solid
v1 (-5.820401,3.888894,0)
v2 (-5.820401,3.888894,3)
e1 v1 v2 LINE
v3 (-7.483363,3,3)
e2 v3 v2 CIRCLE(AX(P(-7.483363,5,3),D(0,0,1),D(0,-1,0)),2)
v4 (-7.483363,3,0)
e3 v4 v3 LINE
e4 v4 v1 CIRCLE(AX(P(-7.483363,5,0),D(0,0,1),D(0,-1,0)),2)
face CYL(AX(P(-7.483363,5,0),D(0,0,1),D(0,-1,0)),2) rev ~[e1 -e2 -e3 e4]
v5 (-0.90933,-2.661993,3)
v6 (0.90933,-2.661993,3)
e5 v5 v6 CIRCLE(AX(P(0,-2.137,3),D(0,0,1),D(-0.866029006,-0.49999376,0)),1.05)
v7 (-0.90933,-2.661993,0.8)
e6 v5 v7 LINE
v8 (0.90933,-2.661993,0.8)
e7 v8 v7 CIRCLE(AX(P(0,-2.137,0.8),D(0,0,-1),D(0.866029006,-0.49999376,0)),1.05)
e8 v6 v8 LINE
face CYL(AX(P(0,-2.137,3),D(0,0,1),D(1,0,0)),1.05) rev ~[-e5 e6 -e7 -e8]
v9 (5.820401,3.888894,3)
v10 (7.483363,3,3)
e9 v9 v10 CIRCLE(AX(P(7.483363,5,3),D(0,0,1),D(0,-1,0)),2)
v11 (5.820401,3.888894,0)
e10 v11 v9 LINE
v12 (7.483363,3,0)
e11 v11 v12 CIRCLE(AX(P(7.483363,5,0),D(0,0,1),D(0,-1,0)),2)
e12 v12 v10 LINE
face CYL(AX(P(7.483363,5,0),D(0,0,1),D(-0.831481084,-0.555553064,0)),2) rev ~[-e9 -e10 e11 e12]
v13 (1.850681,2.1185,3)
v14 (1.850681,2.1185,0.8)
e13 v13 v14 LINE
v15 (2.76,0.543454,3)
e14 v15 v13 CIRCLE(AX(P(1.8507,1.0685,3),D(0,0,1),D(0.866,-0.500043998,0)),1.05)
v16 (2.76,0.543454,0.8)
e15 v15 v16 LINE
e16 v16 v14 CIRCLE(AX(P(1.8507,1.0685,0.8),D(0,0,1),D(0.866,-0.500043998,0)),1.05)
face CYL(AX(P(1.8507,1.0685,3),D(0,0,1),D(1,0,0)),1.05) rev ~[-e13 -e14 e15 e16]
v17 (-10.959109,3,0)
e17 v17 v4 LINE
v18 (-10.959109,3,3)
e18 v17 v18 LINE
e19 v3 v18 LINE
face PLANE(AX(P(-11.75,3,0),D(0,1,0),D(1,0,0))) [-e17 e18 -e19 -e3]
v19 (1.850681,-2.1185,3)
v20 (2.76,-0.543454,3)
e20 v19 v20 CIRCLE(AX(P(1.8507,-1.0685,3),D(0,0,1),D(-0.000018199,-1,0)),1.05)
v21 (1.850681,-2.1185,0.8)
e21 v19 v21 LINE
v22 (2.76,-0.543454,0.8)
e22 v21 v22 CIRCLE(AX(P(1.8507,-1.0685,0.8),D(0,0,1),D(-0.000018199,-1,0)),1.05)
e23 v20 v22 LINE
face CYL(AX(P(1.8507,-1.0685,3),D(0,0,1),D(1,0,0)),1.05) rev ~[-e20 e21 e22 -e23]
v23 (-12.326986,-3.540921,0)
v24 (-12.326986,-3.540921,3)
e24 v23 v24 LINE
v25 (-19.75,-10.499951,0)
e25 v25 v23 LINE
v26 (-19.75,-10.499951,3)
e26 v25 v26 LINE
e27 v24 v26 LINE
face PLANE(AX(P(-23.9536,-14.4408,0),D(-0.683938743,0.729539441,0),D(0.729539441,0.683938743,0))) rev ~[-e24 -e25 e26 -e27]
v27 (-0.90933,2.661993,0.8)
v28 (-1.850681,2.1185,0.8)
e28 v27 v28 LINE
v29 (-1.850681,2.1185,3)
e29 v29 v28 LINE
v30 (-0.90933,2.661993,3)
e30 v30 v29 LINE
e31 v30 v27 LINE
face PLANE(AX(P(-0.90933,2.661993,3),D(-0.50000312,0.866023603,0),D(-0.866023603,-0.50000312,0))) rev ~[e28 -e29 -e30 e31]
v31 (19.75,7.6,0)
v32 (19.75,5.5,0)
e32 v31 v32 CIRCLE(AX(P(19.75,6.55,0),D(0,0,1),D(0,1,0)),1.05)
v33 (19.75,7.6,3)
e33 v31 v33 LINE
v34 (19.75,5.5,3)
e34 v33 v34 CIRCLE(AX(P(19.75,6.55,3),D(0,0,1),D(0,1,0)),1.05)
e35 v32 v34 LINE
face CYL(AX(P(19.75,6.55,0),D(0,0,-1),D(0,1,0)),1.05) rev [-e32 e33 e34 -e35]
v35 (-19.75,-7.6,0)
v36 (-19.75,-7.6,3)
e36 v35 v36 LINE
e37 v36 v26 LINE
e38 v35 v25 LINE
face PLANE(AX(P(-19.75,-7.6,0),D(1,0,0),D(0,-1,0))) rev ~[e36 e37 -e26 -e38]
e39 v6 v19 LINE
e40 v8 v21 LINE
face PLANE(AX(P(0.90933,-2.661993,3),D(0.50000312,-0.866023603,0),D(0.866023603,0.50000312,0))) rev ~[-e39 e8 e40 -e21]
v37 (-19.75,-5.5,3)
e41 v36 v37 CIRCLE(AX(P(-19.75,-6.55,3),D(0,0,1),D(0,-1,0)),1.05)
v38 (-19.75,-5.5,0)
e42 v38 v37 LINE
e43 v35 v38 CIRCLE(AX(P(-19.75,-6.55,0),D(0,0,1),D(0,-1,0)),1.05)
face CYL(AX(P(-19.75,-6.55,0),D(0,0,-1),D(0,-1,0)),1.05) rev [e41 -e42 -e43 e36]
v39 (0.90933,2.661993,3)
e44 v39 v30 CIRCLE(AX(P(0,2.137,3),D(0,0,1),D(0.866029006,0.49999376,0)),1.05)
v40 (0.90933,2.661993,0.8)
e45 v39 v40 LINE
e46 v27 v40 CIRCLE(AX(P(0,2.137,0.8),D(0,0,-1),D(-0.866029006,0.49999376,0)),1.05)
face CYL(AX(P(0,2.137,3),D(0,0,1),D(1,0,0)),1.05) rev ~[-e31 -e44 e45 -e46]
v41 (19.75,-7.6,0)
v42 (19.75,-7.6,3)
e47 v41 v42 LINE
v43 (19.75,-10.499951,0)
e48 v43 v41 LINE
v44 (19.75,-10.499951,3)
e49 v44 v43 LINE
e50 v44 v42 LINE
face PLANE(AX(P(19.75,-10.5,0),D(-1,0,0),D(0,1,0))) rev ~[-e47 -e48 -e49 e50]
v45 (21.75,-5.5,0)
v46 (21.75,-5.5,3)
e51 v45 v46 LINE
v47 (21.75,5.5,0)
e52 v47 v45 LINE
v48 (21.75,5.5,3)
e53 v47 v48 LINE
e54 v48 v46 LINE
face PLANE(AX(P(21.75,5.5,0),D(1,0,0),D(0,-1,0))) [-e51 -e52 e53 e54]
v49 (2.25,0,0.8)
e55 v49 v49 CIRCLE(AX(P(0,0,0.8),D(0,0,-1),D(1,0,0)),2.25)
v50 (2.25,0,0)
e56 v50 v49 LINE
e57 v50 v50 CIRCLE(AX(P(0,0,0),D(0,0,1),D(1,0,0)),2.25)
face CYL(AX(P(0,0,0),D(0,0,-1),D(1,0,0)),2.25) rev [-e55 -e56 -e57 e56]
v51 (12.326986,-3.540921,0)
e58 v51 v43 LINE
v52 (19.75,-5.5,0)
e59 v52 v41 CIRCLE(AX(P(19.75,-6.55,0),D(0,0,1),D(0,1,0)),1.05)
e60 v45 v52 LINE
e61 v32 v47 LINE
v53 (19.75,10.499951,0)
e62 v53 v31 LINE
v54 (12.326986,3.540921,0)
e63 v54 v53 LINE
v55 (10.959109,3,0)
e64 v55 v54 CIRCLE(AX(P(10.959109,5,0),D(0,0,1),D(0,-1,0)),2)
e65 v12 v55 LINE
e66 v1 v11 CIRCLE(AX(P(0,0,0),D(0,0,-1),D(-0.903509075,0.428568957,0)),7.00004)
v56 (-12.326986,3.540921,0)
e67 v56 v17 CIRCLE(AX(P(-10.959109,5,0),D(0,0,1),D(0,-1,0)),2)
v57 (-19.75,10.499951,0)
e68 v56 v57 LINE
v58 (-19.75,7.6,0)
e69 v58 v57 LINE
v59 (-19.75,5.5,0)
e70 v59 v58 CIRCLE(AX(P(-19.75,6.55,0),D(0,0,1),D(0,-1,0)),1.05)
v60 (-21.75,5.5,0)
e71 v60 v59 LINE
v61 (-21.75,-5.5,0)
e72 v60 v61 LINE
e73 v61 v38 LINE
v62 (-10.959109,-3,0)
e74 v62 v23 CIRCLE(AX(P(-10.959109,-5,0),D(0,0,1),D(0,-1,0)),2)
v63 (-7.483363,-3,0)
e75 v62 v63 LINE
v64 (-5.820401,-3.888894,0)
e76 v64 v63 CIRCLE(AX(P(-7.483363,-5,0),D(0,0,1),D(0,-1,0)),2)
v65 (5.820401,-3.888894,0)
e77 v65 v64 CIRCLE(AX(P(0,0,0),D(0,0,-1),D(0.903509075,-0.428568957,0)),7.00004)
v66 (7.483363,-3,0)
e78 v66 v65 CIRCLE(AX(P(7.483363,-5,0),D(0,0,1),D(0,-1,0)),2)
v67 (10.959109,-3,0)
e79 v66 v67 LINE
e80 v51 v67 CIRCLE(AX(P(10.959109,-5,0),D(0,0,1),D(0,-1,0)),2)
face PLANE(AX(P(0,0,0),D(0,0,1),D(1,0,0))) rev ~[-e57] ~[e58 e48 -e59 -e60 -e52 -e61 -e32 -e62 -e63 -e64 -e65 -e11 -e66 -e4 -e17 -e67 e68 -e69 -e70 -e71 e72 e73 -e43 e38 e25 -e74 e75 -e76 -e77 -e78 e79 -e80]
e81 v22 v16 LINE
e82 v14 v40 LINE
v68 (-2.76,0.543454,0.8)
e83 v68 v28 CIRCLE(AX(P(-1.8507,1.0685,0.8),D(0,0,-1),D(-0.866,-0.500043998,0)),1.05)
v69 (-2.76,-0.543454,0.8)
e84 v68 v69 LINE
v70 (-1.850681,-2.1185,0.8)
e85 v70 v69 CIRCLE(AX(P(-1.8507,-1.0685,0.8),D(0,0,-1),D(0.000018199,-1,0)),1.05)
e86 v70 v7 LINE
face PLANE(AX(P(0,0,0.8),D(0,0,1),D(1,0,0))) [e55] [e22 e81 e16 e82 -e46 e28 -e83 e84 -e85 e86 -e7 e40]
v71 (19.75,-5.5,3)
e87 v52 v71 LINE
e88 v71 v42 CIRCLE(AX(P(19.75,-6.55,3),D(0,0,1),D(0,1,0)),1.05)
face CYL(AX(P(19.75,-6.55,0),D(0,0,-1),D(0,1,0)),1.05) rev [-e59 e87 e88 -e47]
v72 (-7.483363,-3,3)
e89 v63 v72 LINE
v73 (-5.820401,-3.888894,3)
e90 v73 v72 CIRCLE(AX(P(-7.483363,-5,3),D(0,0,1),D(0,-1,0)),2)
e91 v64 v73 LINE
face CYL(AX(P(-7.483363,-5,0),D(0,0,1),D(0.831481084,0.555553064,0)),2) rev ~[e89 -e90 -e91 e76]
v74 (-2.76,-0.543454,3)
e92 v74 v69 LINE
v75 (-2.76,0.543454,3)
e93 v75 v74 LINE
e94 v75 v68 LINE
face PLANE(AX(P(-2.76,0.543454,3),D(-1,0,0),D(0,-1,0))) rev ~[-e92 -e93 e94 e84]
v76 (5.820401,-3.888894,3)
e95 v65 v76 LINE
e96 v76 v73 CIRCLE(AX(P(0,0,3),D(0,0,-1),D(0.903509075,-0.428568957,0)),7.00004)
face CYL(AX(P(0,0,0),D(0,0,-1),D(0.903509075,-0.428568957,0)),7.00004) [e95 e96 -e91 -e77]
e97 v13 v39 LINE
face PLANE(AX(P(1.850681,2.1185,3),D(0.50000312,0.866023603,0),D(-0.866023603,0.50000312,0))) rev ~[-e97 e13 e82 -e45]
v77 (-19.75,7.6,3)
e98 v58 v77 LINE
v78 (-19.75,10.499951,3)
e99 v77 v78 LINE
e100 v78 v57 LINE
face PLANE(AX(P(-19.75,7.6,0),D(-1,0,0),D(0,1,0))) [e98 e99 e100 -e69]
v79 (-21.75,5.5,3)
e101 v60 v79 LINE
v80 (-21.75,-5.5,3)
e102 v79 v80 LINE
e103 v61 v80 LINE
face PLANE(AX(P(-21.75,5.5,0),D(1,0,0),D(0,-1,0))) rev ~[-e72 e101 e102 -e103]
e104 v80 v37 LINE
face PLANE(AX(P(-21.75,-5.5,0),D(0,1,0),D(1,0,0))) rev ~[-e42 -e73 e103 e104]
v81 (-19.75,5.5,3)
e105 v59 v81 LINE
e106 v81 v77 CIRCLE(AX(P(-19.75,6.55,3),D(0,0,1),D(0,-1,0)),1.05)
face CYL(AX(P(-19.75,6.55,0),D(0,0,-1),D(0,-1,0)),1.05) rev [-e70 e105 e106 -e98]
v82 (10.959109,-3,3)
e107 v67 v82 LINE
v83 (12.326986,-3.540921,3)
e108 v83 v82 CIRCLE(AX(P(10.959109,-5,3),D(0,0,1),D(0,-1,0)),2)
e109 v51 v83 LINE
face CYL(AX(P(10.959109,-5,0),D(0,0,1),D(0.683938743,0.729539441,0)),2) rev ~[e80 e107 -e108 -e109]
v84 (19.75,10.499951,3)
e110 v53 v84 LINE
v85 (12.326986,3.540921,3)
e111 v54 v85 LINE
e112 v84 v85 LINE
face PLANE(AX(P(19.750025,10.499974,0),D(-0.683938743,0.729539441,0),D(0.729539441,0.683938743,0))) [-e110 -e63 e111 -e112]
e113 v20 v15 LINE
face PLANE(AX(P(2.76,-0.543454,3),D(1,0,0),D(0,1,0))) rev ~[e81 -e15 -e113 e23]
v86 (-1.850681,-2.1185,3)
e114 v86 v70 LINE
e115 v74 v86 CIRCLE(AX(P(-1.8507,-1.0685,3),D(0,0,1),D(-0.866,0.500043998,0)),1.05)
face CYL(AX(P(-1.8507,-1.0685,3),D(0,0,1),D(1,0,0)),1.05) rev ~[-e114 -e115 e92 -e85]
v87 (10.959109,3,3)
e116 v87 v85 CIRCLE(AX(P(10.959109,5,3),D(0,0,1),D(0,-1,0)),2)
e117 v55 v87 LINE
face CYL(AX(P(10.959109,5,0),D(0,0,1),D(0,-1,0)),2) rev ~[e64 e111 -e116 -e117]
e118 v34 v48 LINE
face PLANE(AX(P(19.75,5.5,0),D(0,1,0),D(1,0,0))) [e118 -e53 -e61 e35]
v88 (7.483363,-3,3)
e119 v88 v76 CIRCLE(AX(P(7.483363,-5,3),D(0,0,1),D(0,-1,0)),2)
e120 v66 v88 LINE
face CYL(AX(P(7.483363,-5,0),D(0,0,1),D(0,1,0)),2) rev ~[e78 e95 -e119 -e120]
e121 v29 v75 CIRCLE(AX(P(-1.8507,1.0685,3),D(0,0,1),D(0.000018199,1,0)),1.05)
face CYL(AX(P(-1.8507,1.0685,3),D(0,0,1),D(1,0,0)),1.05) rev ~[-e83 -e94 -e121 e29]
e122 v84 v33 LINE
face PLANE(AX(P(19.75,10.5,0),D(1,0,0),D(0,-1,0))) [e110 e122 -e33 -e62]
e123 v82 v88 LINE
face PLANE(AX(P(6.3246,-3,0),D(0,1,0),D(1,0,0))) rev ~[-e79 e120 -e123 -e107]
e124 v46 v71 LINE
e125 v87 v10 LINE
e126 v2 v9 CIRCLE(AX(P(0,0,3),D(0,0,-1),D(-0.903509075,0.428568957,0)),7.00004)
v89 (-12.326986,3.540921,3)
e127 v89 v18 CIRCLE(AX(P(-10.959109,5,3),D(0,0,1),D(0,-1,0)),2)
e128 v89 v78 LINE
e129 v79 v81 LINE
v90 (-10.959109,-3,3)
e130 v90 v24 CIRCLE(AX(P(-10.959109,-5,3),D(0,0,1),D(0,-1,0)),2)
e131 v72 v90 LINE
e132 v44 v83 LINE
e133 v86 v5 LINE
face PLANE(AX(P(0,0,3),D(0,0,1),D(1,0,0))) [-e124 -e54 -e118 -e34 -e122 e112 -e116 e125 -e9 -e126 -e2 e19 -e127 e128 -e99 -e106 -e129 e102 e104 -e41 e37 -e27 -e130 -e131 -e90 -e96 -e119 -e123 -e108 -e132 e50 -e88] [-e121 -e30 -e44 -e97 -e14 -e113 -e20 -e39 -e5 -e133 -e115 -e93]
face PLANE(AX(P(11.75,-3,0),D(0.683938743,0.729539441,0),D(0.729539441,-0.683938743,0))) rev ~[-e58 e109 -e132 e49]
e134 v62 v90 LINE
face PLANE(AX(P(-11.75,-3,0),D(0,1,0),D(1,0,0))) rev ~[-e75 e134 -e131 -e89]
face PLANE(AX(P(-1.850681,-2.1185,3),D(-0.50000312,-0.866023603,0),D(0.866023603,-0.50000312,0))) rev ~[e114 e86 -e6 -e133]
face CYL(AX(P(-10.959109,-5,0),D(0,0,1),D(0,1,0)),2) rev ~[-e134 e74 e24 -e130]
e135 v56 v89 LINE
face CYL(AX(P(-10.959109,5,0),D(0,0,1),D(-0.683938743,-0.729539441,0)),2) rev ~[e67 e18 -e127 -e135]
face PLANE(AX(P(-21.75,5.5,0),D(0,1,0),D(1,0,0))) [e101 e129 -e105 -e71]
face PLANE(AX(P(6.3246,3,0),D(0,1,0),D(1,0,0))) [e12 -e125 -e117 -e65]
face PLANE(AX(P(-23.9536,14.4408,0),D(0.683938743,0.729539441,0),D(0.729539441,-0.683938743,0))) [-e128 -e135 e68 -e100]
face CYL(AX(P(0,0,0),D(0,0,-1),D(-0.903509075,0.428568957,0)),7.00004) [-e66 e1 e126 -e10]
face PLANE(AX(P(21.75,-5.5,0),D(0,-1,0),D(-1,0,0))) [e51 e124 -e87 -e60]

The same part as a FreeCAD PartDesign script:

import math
import FreeCAD as App
import Part
import Sketcher
from FreeCAD import Vector
Q = App.Units.Quantity


def edges_at(feature, points):
    """Names of the edges that pass closest to the given points."""
    edges = feature.Shape.Edges
    near = lambda p: min(range(len(edges)), key=lambda i: edges[i].distToShape(Part.Vertex(*p))[0])
    return sorted({f"Edge{near(p) + 1}" for p in points})

doc = App.newDocument("Part")
body = doc.addObject("PartDesign::Body", "Body")

# Sketch on XY plane
sketch1 = body.newObject("Sketcher::SketchObject", "Sketch")
sketch1.AttachmentSupport = (doc.getObject("XY_Plane"), [""])
sketch1.MapMode = "FlatFace"
sketch1.addGeometry([
    Part.LineSegment(Vector(-19.8, 5.5, 0), Vector(-21.8, 5.5, 0)),  # 0
    Part.LineSegment(Vector(-21.8, 5.5, 0), Vector(-21.8, -5.5, 0)),  # 1
    Part.LineSegment(Vector(-21.8, -5.5, 0), Vector(-19.8, -5.5, 0)),  # 2
    Part.ArcOfCircle(Part.Circle(Vector(-19.8, -6.5, 0), Vector(0, 0, 1), 1), math.radians(-90), math.radians(90)),  # 3
    Part.LineSegment(Vector(-19.8, -7.6, 0), Vector(-19.8, -10.5, 0)),  # 4
    Part.LineSegment(Vector(-19.8, -10.5, 0), Vector(19.8, -10.5, 0)),  # 5
    Part.LineSegment(Vector(19.8, -10.5, 0), Vector(19.8, -7.6, 0)),  # 6
    Part.ArcOfCircle(Part.Circle(Vector(19.8, -6.5, 0), Vector(0, 0, 1), 1), math.radians(90), math.radians(270)),  # 7
    Part.LineSegment(Vector(19.8, -5.5, 0), Vector(21.8, -5.5, 0)),  # 8
    Part.LineSegment(Vector(21.8, -5.5, 0), Vector(21.8, 5.5, 0)),  # 9
    Part.LineSegment(Vector(21.8, 5.5, 0), Vector(19.8, 5.5, 0)),  # 10
    Part.ArcOfCircle(Part.Circle(Vector(19.8, 6.5, 0), Vector(0, 0, 1), 1), math.radians(90), math.radians(270)),  # 11
    Part.LineSegment(Vector(19.8, 7.6, 0), Vector(19.8, 10.5, 0)),  # 12
    Part.LineSegment(Vector(19.8, 10.5, 0), Vector(-19.8, 10.5, 0)),  # 13
    Part.LineSegment(Vector(-19.8, 10.5, 0), Vector(-19.8, 7.6, 0)),  # 14
    Part.ArcOfCircle(Part.Circle(Vector(-19.8, 6.5, 0), Vector(0, 0, 1), 1), math.radians(-90), math.radians(90)),  # 15
    Part.Circle(Vector(0, 0, 0), Vector(0, 0, 1), 2.2),  # 16
], False)
sketch1.addConstraint([
    Sketcher.Constraint("Coincident", 0, 2, 1, 1),
    Sketcher.Constraint("Coincident", 1, 2, 2, 1),
    Sketcher.Constraint("Tangent", 2, 2, 3, 2),
    Sketcher.Constraint("Coincident", 3, 1, 4, 1),
    Sketcher.Constraint("Coincident", 4, 2, 5, 1),
    Sketcher.Constraint("Coincident", 5, 2, 6, 1),
    Sketcher.Constraint("Coincident", 6, 2, 7, 2),
    Sketcher.Constraint("Tangent", 7, 1, 8, 1),
    Sketcher.Constraint("Coincident", 8, 2, 9, 1),
    Sketcher.Constraint("Coincident", 9, 2, 10, 1),
    Sketcher.Constraint("Tangent", 10, 2, 11, 2),
    Sketcher.Constraint("Coincident", 11, 1, 12, 1),
    Sketcher.Constraint("Coincident", 12, 2, 13, 1),
    Sketcher.Constraint("Coincident", 13, 2, 14, 1),
    Sketcher.Constraint("Coincident", 14, 2, 15, 2),
    Sketcher.Constraint("Tangent", 15, 1, 0, 1),
    Sketcher.Constraint("Horizontal", 0),
    Sketcher.Constraint("Vertical", 1),
    Sketcher.Constraint("Horizontal", 2),
    Sketcher.Constraint("Vertical", 4),
    Sketcher.Constraint("Horizontal", 5),
    Sketcher.Constraint("Vertical", 6),
    Sketcher.Constraint("Horizontal", 8),
    Sketcher.Constraint("Vertical", 9),
    Sketcher.Constraint("Horizontal", 10),
    Sketcher.Constraint("Vertical", 12),
    Sketcher.Constraint("Horizontal", 13),
    Sketcher.Constraint("Vertical", 14),
    Sketcher.Constraint("Coincident", 16, 3, -1, 1),
    Sketcher.Constraint("Equal", 3, 7),
    Sketcher.Constraint("Equal", 7, 11),
    Sketcher.Constraint("Equal", 11, 15),
    Sketcher.Constraint("Symmetric", 3, 3, 11, 3, -1, 1),
    Sketcher.Constraint("Symmetric", 7, 3, 15, 3, -1, 1),
    Sketcher.Constraint("Symmetric", 4, 2, 12, 2, -1, 1),
    Sketcher.Constraint("Symmetric", 3, 3, 7, 3, -2),
    Sketcher.Constraint("Vertical", 2, 2, 3, 1),
    Sketcher.Constraint("Vertical", 11, 3, 5, 2),
    Sketcher.Constraint("Vertical", 4, 2, 13, 2),
    Sketcher.Constraint("Equal", 2, 8),
    Sketcher.Constraint("Diameter", 16, 4.5),
    Sketcher.Constraint("DistanceX", 0, 2, 0, 1, 2.0),
    Sketcher.Constraint("DistanceY", 1, 2, 1, 1, 11.0),
    Sketcher.Constraint("Radius", 3, 1.05),
    Sketcher.Constraint("DistanceX", 5, 1, 5, 2, 39.5),
    Sketcher.Constraint("DistanceY", 4, 2, 2, 2, 5.0),
])
pad1 = body.newObject("PartDesign::Pad", "Pad")
pad1.Profile = sketch1
pad1.Length = 3

# Sketch on XY plane
sketch2 = body.newObject("Sketcher::SketchObject", "Sketch001")
sketch2.AttachmentSupport = (doc.getObject("XY_Plane"), [""])
sketch2.MapMode = "FlatFace"
sketch2.addGeometry([
    Part.LineSegment(Vector(24, 14, 0), Vector(12, 3, 0)),  # 0
    Part.LineSegment(Vector(12, 3, 0), Vector(6, 3, 0)),  # 1
    Part.ArcOfCircle(Part.Circle(Vector(0, 0, 0), Vector(0, 0, 1), 7), math.radians(25), math.radians(155)),  # 2
    Part.LineSegment(Vector(-6, 3, 0), Vector(-12, 3, 0)),  # 3
    Part.LineSegment(Vector(-12, 3, 0), Vector(-24, 14, 0)),  # 4
    Part.LineSegment(Vector(-24, 14, 0), Vector(24, 14, 0)),  # 5
    Part.ArcOfCircle(Part.Circle(Vector(0, 0, 0), Vector(0, 0, 1), 7), math.radians(-155), math.radians(-25)),  # 6
    Part.LineSegment(Vector(6, -3, 0), Vector(12, -3, 0)),  # 7
    Part.LineSegment(Vector(12, -3, 0), Vector(24, -14, 0)),  # 8
    Part.LineSegment(Vector(24, -14, 0), Vector(-24, -14, 0)),  # 9
    Part.LineSegment(Vector(-24, -14, 0), Vector(-12, -3, 0)),  # 10
    Part.LineSegment(Vector(-12, -3, 0), Vector(-6, -3, 0)),  # 11
], False)
sketch2.addConstraint([
    Sketcher.Constraint("Coincident", 0, 2, 1, 1),
    Sketcher.Constraint("Coincident", 1, 2, 2, 1),
    Sketcher.Constraint("Coincident", 2, 2, 3, 1),
    Sketcher.Constraint("Coincident", 3, 2, 4, 1),
    Sketcher.Constraint("Coincident", 4, 2, 5, 1),
    Sketcher.Constraint("Coincident", 5, 2, 0, 1),
    Sketcher.Constraint("Coincident", 6, 2, 7, 1),
    Sketcher.Constraint("Coincident", 7, 2, 8, 1),
    Sketcher.Constraint("Coincident", 8, 2, 9, 1),
    Sketcher.Constraint("Coincident", 9, 2, 10, 1),
    Sketcher.Constraint("Coincident", 10, 2, 11, 1),
    Sketcher.Constraint("Coincident", 11, 2, 6, 1),
    Sketcher.Constraint("Horizontal", 1),
    Sketcher.Constraint("Horizontal", 3),
    Sketcher.Constraint("Horizontal", 5),
    Sketcher.Constraint("Horizontal", 7),
    Sketcher.Constraint("Horizontal", 9),
    Sketcher.Constraint("Horizontal", 11),
    Sketcher.Constraint("Coincident", 2, 3, -1, 1),
    Sketcher.Constraint("Coincident", 6, 3, -1, 1),
    Sketcher.Constraint("Equal", 2, 6),
    Sketcher.Constraint("Symmetric", 3, 2, 7, 2, -1, 1),
    Sketcher.Constraint("Symmetric", 4, 2, 8, 2, -1, 1),
    Sketcher.Constraint("Symmetric", 0, 2, 10, 2, -1, 1),
    Sketcher.Constraint("Symmetric", 0, 2, 3, 2, -2),
    Sketcher.Constraint("Parallel", 0, 10),
    Sketcher.Constraint("Vertical", 5, 2, 8, 2),
    Sketcher.Constraint("Radius", 2, 7.0),
    Sketcher.Constraint("DistanceY", -1, 1, 0, 2, 3.0),
    Sketcher.Constraint("DistanceX", 3, 2, 0, 2, 23.5),
    Sketcher.Constraint("DistanceX", 5, 1, 5, 2, 47.9072),
    Sketcher.Constraint("Distance", 0, 16.7278),
])
pocket1 = body.newObject("PartDesign::Pocket", "Pocket")
pocket1.Profile = sketch2
pocket1.Length = 10
pocket1.Reversed = True
doc.recompute()

fillet = body.newObject("PartDesign::Fillet", "Fillet")
fillet.Base = (pocket1, edges_at(pocket1, [
    (6.325, 3, 1.5),
    (-6.325, 3, 1.5),
    (6.325, -3, 1.5),
    (-6.325, -3, 1.5),
    (11.75, -3, 1.5),
    (11.75, 3, 1.5),
    (-11.75, 3, 1.5),
    (-11.75, -3, 1.5),
]))
fillet.Radius = 2

# Sketch on XY plane
sketch3 = body.newObject("Sketcher::SketchObject", "Sketch002")
sketch3.AttachmentSupport = (doc.getObject("XY_Plane"), [""])
sketch3.MapMode = "FlatFace"
sketch3.AttachmentOffset = App.Placement(Vector(0, 0, 3), App.Rotation())
sketch3.addGeometry([
    Part.LineSegment(Vector(2.8, -0.5, 0), Vector(2.8, 0.5, 0)),  # 0
    Part.ArcOfCircle(Part.Circle(Vector(1.9, 1.1, 0), Vector(0, 0, 1), 1.1), math.radians(-30), math.radians(90)),  # 1
    Part.LineSegment(Vector(1.9, 2.1, 0), Vector(0.9, 2.7, 0)),  # 2
    Part.ArcOfCircle(Part.Circle(Vector(0, 2.1, 0), Vector(0, 0, 1), 1.1), math.radians(30), math.radians(150)),  # 3
    Part.LineSegment(Vector(-0.9, 2.7, 0), Vector(-1.9, 2.1, 0)),  # 4
    Part.ArcOfCircle(Part.Circle(Vector(-1.9, 1.1, 0), Vector(0, 0, 1), 1.1), math.radians(90), math.radians(210)),  # 5
    Part.LineSegment(Vector(-2.8, 0.5, 0), Vector(-2.8, -0.5, 0)),  # 6
    Part.ArcOfCircle(Part.Circle(Vector(-1.9, -1.1, 0), Vector(0, 0, 1), 1.1), math.radians(150), math.radians(270)),  # 7
    Part.LineSegment(Vector(-1.9, -2.1, 0), Vector(-0.9, -2.7, 0)),  # 8
    Part.ArcOfCircle(Part.Circle(Vector(0, -2.1, 0), Vector(0, 0, 1), 1.1), math.radians(-150), math.radians(-30)),  # 9
    Part.LineSegment(Vector(0.9, -2.7, 0), Vector(1.9, -2.1, 0)),  # 10
    Part.ArcOfCircle(Part.Circle(Vector(1.9, -1.1, 0), Vector(0, 0, 1), 1.1), math.radians(-90), math.radians(30)),  # 11
], False)
sketch3.addConstraint([
    Sketcher.Constraint("Coincident", 0, 2, 1, 1),
    Sketcher.Constraint("Coincident", 1, 2, 2, 1),
    Sketcher.Constraint("Coincident", 2, 2, 3, 1),
    Sketcher.Constraint("Coincident", 3, 2, 4, 1),
    Sketcher.Constraint("Coincident", 4, 2, 5, 1),
    Sketcher.Constraint("Coincident", 5, 2, 6, 1),
    Sketcher.Constraint("Coincident", 6, 2, 7, 1),
    Sketcher.Constraint("Coincident", 7, 2, 8, 1),
    Sketcher.Constraint("Coincident", 8, 2, 9, 1),
    Sketcher.Constraint("Coincident", 9, 2, 10, 1),
    Sketcher.Constraint("Coincident", 10, 2, 11, 1),
    Sketcher.Constraint("Coincident", 11, 2, 0, 1),
    Sketcher.Constraint("Vertical", 0),
    Sketcher.Constraint("Vertical", 6),
    Sketcher.Constraint("Equal", 1, 3),
    Sketcher.Constraint("Equal", 3, 5),
    Sketcher.Constraint("Equal", 5, 7),
    Sketcher.Constraint("Equal", 7, 9),
    Sketcher.Constraint("Equal", 9, 11),
    Sketcher.Constraint("Symmetric", 1, 3, 7, 3, -1, 1),
    Sketcher.Constraint("Symmetric", 3, 3, 9, 3, -1, 1),
    Sketcher.Constraint("Symmetric", 5, 3, 11, 3, -1, 1),
    Sketcher.Constraint("Symmetric", 1, 3, 5, 3, -2),
    Sketcher.Constraint("Symmetric", 2, 2, 3, 2, -2),
    Sketcher.Constraint("Parallel", 2, 8),
    Sketcher.Constraint("Parallel", 4, 10),
    Sketcher.Constraint("Horizontal", 0, 2, 5, 2),
    Sketcher.Constraint("Horizontal", 8, 2, 9, 2),
    Sketcher.Constraint("Vertical", 11, 3, 1, 2),
    Sketcher.Constraint("Vertical", 7, 3, 4, 2),
    Sketcher.Constraint("Vertical", 4, 2, 7, 2),
    Sketcher.Constraint("Radius", 1, 1.05),
    Sketcher.Constraint("Angle", 2, Q("149.9998 deg")),
    Sketcher.Constraint("DistanceY", 0, 1, 0, 2, 1.087),
    Sketcher.Constraint("DistanceX", -1, 1, 0, 2, 2.76),
    Sketcher.Constraint("DistanceX", 5, 3, 2, 2, 2.76),
    Sketcher.Constraint("Distance", 2, 1.087),
])
pocket2 = body.newObject("PartDesign::Pocket", "Pocket001")
pocket2.Profile = sketch3
pocket2.Length = 2.2

doc.recompute()
